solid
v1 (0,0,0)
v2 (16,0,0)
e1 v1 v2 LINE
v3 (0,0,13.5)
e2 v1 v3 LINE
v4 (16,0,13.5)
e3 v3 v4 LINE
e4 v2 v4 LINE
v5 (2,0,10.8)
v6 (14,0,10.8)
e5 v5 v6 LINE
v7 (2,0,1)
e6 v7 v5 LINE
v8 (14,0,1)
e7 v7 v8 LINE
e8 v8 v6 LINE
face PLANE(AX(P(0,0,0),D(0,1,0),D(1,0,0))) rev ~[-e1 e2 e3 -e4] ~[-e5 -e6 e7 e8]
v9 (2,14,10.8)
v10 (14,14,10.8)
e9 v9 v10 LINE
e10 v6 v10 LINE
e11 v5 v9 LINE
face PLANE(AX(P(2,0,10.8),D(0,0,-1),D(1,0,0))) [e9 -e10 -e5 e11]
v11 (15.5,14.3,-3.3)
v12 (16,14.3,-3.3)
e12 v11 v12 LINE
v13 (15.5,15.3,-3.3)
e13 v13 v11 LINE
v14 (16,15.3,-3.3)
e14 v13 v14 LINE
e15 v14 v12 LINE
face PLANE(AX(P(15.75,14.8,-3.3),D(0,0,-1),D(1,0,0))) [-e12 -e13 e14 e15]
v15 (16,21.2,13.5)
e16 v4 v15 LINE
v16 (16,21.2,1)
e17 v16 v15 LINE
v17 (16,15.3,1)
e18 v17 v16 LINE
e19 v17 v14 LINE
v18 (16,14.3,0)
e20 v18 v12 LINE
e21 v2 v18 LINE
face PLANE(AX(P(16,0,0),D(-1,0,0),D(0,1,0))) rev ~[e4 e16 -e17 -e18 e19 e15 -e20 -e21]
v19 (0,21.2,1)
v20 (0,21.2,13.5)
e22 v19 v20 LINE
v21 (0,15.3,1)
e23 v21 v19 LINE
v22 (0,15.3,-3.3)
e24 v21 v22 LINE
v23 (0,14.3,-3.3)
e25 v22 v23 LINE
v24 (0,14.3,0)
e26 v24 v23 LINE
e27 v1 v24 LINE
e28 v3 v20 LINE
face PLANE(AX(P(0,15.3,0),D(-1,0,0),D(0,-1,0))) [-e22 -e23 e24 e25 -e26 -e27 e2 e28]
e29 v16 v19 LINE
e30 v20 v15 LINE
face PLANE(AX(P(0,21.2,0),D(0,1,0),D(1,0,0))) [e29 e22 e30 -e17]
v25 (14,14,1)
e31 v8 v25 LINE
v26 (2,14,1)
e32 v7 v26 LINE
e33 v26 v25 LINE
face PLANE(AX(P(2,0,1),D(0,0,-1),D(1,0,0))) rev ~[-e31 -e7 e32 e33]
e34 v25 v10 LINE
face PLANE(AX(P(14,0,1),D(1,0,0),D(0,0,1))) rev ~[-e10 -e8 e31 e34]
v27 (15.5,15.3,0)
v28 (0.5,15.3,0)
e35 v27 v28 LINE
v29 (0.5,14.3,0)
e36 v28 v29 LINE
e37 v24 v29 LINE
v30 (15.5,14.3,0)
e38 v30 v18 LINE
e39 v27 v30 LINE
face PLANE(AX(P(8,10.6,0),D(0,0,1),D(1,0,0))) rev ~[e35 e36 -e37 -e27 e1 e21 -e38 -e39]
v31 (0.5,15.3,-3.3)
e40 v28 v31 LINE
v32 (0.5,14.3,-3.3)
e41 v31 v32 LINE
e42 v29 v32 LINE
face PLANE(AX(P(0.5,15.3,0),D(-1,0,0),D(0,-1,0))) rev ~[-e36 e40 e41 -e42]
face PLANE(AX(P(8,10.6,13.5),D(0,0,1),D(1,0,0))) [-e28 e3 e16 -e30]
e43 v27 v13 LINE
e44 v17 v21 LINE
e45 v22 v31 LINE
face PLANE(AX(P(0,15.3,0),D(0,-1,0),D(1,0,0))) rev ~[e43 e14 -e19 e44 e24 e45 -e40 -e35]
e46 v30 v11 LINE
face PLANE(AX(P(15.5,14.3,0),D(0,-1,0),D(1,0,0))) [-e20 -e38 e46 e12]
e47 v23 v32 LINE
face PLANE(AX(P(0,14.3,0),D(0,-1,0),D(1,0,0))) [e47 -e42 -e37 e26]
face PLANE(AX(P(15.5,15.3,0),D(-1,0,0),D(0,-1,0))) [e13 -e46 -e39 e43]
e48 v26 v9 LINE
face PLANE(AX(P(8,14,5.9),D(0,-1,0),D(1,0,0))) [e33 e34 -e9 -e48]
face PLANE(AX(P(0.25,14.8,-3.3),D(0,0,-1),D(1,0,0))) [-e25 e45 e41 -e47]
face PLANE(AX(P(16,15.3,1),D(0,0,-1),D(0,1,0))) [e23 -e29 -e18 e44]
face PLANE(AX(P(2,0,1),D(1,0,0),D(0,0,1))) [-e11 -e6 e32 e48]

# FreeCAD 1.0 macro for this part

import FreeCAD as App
import Part
import Sketcher
from FreeCAD import Vector
Q = App.Units.Quantity


def add_polygon(sketch, points):
    """Adds a closed chain of lines whose ends are joined by coincident constraints."""
    first, n = sketch.GeometryCount, len(points)
    for a, b in zip(points, points[1:] + points[:1]):
        sketch.addGeometry(Part.LineSegment(App.Vector(*a, 0), App.Vector(*b, 0)), False)
    for i in range(n):
        sketch.addConstraint(Sketcher.Constraint("Coincident", first + i, 2, first + (i + 1) % n, 1))

doc = App.newDocument("Part")
body = doc.addObject("PartDesign::Body", "Body")

# Sketch on XY plane
sketch1 = doc.addObject("Sketcher::SketchObject", "Sketch")
body.addObject(sketch1)
sketch1.AttachmentSupport = (doc.XY_Plane, [""])
sketch1.MapMode = "FlatFace"
add_polygon(sketch1, [(0, 21.2), (0, 0), (16, 0), (16, 21.2)])  # lines 0-3
sketch1.addConstraint([
    Sketcher.Constraint("Vertical", 0),
    Sketcher.Constraint("Horizontal", 1),
    Sketcher.Constraint("Vertical", 2),
    Sketcher.Constraint("Horizontal", 3),
    Sketcher.Constraint("Coincident", 0, 2, -1, 1),
    Sketcher.Constraint("DistanceX", 1, 1, 1, 2, Q("16 mm")),
    Sketcher.Constraint("DistanceY", 0, 2, 0, 1, Q("21.2 mm")),
])
pad1 = doc.addObject("PartDesign::Pad", "Pad")
body.addObject(pad1)
pad1.Profile = sketch1
pad1.Length = 13.5

# Sketch on YZ plane
sketch2 = doc.addObject("Sketcher::SketchObject", "Sketch001")
body.addObject(sketch2)
sketch2.AttachmentSupport = (doc.YZ_Plane, [""])
sketch2.MapMode = "FlatFace"
sketch2.AttachmentOffset = App.Placement(Vector(0, 0, 16), App.Rotation())
add_polygon(sketch2, [(15.3, 1), (15.3, 0), (21.2, 0), (21.2, 1)])  # lines 0-3
sketch2.addConstraint([
    Sketcher.Constraint("Vertical", 0),
    Sketcher.Constraint("Horizontal", 1),
    Sketcher.Constraint("Vertical", 2),
    Sketcher.Constraint("Horizontal", 3),
    Sketcher.Constraint("PointOnObject", 0, 2, -1),
    Sketcher.Constraint("DistanceY", 0, 2, 0, 1, Q("1 mm")),
    Sketcher.Constraint("DistanceX", 1, 1, 1, 2, Q("5.9 mm")),
    Sketcher.Constraint("DistanceX", -1, 1, 0, 2, Q("15.3 mm")),
])
pocket1 = doc.addObject("PartDesign::Pocket", "Pocket")
body.addObject(pocket1)
pocket1.Profile = sketch2
pocket1.Type = "ThroughAll"

# Sketch on XZ plane
sketch3 = doc.addObject("Sketcher::SketchObject", "Sketch002")
body.addObject(sketch3)
sketch3.AttachmentSupport = (doc.XZ_Plane, [""])
sketch3.MapMode = "FlatFace"
add_polygon(sketch3, [(2, 10.8), (2, 1), (14, 1), (14, 10.8)])  # lines 0-3
sketch3.addConstraint([
    Sketcher.Constraint("Vertical", 0),
    Sketcher.Constraint("Horizontal", 1),
    Sketcher.Constraint("Vertical", 2),
    Sketcher.Constraint("Horizontal", 3),
    Sketcher.Constraint("DistanceX", 1, 1, 1, 2, Q("12 mm")),
    Sketcher.Constraint("DistanceY", 0, 2, 0, 1, Q("9.8 mm")),
    Sketcher.Constraint("DistanceX", -1, 1, 0, 2, Q("2 mm")),
    Sketcher.Constraint("DistanceY", -1, 1, 0, 2, Q("1 mm")),
])
pocket2 = doc.addObject("PartDesign::Pocket", "Pocket001")
body.addObject(pocket2)
pocket2.Profile = sketch3
pocket2.Length = 14

# Sketch on XY plane
sketch4 = doc.addObject("Sketcher::SketchObject", "Sketch003")
body.addObject(sketch4)
sketch4.AttachmentSupport = (doc.XY_Plane, [""])
sketch4.MapMode = "FlatFace"
add_polygon(sketch4, [(0, 14.3), (0, 15.3), (0.5, 15.3), (0.5, 14.3)])  # lines 0-3
add_polygon(sketch4, [(15.5, 14.3), (15.5, 15.3), (16, 15.3), (16, 14.3)])  # lines 4-7
sketch4.addConstraint([
    Sketcher.Constraint("Vertical", 0),
    Sketcher.Constraint("Horizontal", 1),
    Sketcher.Constraint("Vertical", 2),
    Sketcher.Constraint("Horizontal", 3),
    Sketcher.Constraint("Vertical", 4),
    Sketcher.Constraint("Horizontal", 5),
    Sketcher.Constraint("Vertical", 6),
    Sketcher.Constraint("Horizontal", 7),
    Sketcher.Constraint("PointOnObject", 0, 2, -2),
    Sketcher.Constraint("Horizontal", 1, 2, 4, 2),
    Sketcher.Constraint("Horizontal", 3, 2, 6, 2),
    Sketcher.Constraint("Equal", 3, 5),
    Sketcher.Constraint("DistanceY", 0, 1, 0, 2, Q("1 mm")),
    Sketcher.Constraint("DistanceX", 1, 1, 1, 2, Q("0.5 mm")),
    Sketcher.Constraint("DistanceX", -1, 1, 5, 2, Q("16 mm")),
    Sketcher.Constraint("DistanceY", -1, 1, 0, 2, Q("15.3 mm")),
])
pad2 = doc.addObject("PartDesign::Pad", "Pad001")
body.addObject(pad2)
pad2.Profile = sketch4
pad2.Length = 3.3
pad2.Reversed = True

doc.recompute()
